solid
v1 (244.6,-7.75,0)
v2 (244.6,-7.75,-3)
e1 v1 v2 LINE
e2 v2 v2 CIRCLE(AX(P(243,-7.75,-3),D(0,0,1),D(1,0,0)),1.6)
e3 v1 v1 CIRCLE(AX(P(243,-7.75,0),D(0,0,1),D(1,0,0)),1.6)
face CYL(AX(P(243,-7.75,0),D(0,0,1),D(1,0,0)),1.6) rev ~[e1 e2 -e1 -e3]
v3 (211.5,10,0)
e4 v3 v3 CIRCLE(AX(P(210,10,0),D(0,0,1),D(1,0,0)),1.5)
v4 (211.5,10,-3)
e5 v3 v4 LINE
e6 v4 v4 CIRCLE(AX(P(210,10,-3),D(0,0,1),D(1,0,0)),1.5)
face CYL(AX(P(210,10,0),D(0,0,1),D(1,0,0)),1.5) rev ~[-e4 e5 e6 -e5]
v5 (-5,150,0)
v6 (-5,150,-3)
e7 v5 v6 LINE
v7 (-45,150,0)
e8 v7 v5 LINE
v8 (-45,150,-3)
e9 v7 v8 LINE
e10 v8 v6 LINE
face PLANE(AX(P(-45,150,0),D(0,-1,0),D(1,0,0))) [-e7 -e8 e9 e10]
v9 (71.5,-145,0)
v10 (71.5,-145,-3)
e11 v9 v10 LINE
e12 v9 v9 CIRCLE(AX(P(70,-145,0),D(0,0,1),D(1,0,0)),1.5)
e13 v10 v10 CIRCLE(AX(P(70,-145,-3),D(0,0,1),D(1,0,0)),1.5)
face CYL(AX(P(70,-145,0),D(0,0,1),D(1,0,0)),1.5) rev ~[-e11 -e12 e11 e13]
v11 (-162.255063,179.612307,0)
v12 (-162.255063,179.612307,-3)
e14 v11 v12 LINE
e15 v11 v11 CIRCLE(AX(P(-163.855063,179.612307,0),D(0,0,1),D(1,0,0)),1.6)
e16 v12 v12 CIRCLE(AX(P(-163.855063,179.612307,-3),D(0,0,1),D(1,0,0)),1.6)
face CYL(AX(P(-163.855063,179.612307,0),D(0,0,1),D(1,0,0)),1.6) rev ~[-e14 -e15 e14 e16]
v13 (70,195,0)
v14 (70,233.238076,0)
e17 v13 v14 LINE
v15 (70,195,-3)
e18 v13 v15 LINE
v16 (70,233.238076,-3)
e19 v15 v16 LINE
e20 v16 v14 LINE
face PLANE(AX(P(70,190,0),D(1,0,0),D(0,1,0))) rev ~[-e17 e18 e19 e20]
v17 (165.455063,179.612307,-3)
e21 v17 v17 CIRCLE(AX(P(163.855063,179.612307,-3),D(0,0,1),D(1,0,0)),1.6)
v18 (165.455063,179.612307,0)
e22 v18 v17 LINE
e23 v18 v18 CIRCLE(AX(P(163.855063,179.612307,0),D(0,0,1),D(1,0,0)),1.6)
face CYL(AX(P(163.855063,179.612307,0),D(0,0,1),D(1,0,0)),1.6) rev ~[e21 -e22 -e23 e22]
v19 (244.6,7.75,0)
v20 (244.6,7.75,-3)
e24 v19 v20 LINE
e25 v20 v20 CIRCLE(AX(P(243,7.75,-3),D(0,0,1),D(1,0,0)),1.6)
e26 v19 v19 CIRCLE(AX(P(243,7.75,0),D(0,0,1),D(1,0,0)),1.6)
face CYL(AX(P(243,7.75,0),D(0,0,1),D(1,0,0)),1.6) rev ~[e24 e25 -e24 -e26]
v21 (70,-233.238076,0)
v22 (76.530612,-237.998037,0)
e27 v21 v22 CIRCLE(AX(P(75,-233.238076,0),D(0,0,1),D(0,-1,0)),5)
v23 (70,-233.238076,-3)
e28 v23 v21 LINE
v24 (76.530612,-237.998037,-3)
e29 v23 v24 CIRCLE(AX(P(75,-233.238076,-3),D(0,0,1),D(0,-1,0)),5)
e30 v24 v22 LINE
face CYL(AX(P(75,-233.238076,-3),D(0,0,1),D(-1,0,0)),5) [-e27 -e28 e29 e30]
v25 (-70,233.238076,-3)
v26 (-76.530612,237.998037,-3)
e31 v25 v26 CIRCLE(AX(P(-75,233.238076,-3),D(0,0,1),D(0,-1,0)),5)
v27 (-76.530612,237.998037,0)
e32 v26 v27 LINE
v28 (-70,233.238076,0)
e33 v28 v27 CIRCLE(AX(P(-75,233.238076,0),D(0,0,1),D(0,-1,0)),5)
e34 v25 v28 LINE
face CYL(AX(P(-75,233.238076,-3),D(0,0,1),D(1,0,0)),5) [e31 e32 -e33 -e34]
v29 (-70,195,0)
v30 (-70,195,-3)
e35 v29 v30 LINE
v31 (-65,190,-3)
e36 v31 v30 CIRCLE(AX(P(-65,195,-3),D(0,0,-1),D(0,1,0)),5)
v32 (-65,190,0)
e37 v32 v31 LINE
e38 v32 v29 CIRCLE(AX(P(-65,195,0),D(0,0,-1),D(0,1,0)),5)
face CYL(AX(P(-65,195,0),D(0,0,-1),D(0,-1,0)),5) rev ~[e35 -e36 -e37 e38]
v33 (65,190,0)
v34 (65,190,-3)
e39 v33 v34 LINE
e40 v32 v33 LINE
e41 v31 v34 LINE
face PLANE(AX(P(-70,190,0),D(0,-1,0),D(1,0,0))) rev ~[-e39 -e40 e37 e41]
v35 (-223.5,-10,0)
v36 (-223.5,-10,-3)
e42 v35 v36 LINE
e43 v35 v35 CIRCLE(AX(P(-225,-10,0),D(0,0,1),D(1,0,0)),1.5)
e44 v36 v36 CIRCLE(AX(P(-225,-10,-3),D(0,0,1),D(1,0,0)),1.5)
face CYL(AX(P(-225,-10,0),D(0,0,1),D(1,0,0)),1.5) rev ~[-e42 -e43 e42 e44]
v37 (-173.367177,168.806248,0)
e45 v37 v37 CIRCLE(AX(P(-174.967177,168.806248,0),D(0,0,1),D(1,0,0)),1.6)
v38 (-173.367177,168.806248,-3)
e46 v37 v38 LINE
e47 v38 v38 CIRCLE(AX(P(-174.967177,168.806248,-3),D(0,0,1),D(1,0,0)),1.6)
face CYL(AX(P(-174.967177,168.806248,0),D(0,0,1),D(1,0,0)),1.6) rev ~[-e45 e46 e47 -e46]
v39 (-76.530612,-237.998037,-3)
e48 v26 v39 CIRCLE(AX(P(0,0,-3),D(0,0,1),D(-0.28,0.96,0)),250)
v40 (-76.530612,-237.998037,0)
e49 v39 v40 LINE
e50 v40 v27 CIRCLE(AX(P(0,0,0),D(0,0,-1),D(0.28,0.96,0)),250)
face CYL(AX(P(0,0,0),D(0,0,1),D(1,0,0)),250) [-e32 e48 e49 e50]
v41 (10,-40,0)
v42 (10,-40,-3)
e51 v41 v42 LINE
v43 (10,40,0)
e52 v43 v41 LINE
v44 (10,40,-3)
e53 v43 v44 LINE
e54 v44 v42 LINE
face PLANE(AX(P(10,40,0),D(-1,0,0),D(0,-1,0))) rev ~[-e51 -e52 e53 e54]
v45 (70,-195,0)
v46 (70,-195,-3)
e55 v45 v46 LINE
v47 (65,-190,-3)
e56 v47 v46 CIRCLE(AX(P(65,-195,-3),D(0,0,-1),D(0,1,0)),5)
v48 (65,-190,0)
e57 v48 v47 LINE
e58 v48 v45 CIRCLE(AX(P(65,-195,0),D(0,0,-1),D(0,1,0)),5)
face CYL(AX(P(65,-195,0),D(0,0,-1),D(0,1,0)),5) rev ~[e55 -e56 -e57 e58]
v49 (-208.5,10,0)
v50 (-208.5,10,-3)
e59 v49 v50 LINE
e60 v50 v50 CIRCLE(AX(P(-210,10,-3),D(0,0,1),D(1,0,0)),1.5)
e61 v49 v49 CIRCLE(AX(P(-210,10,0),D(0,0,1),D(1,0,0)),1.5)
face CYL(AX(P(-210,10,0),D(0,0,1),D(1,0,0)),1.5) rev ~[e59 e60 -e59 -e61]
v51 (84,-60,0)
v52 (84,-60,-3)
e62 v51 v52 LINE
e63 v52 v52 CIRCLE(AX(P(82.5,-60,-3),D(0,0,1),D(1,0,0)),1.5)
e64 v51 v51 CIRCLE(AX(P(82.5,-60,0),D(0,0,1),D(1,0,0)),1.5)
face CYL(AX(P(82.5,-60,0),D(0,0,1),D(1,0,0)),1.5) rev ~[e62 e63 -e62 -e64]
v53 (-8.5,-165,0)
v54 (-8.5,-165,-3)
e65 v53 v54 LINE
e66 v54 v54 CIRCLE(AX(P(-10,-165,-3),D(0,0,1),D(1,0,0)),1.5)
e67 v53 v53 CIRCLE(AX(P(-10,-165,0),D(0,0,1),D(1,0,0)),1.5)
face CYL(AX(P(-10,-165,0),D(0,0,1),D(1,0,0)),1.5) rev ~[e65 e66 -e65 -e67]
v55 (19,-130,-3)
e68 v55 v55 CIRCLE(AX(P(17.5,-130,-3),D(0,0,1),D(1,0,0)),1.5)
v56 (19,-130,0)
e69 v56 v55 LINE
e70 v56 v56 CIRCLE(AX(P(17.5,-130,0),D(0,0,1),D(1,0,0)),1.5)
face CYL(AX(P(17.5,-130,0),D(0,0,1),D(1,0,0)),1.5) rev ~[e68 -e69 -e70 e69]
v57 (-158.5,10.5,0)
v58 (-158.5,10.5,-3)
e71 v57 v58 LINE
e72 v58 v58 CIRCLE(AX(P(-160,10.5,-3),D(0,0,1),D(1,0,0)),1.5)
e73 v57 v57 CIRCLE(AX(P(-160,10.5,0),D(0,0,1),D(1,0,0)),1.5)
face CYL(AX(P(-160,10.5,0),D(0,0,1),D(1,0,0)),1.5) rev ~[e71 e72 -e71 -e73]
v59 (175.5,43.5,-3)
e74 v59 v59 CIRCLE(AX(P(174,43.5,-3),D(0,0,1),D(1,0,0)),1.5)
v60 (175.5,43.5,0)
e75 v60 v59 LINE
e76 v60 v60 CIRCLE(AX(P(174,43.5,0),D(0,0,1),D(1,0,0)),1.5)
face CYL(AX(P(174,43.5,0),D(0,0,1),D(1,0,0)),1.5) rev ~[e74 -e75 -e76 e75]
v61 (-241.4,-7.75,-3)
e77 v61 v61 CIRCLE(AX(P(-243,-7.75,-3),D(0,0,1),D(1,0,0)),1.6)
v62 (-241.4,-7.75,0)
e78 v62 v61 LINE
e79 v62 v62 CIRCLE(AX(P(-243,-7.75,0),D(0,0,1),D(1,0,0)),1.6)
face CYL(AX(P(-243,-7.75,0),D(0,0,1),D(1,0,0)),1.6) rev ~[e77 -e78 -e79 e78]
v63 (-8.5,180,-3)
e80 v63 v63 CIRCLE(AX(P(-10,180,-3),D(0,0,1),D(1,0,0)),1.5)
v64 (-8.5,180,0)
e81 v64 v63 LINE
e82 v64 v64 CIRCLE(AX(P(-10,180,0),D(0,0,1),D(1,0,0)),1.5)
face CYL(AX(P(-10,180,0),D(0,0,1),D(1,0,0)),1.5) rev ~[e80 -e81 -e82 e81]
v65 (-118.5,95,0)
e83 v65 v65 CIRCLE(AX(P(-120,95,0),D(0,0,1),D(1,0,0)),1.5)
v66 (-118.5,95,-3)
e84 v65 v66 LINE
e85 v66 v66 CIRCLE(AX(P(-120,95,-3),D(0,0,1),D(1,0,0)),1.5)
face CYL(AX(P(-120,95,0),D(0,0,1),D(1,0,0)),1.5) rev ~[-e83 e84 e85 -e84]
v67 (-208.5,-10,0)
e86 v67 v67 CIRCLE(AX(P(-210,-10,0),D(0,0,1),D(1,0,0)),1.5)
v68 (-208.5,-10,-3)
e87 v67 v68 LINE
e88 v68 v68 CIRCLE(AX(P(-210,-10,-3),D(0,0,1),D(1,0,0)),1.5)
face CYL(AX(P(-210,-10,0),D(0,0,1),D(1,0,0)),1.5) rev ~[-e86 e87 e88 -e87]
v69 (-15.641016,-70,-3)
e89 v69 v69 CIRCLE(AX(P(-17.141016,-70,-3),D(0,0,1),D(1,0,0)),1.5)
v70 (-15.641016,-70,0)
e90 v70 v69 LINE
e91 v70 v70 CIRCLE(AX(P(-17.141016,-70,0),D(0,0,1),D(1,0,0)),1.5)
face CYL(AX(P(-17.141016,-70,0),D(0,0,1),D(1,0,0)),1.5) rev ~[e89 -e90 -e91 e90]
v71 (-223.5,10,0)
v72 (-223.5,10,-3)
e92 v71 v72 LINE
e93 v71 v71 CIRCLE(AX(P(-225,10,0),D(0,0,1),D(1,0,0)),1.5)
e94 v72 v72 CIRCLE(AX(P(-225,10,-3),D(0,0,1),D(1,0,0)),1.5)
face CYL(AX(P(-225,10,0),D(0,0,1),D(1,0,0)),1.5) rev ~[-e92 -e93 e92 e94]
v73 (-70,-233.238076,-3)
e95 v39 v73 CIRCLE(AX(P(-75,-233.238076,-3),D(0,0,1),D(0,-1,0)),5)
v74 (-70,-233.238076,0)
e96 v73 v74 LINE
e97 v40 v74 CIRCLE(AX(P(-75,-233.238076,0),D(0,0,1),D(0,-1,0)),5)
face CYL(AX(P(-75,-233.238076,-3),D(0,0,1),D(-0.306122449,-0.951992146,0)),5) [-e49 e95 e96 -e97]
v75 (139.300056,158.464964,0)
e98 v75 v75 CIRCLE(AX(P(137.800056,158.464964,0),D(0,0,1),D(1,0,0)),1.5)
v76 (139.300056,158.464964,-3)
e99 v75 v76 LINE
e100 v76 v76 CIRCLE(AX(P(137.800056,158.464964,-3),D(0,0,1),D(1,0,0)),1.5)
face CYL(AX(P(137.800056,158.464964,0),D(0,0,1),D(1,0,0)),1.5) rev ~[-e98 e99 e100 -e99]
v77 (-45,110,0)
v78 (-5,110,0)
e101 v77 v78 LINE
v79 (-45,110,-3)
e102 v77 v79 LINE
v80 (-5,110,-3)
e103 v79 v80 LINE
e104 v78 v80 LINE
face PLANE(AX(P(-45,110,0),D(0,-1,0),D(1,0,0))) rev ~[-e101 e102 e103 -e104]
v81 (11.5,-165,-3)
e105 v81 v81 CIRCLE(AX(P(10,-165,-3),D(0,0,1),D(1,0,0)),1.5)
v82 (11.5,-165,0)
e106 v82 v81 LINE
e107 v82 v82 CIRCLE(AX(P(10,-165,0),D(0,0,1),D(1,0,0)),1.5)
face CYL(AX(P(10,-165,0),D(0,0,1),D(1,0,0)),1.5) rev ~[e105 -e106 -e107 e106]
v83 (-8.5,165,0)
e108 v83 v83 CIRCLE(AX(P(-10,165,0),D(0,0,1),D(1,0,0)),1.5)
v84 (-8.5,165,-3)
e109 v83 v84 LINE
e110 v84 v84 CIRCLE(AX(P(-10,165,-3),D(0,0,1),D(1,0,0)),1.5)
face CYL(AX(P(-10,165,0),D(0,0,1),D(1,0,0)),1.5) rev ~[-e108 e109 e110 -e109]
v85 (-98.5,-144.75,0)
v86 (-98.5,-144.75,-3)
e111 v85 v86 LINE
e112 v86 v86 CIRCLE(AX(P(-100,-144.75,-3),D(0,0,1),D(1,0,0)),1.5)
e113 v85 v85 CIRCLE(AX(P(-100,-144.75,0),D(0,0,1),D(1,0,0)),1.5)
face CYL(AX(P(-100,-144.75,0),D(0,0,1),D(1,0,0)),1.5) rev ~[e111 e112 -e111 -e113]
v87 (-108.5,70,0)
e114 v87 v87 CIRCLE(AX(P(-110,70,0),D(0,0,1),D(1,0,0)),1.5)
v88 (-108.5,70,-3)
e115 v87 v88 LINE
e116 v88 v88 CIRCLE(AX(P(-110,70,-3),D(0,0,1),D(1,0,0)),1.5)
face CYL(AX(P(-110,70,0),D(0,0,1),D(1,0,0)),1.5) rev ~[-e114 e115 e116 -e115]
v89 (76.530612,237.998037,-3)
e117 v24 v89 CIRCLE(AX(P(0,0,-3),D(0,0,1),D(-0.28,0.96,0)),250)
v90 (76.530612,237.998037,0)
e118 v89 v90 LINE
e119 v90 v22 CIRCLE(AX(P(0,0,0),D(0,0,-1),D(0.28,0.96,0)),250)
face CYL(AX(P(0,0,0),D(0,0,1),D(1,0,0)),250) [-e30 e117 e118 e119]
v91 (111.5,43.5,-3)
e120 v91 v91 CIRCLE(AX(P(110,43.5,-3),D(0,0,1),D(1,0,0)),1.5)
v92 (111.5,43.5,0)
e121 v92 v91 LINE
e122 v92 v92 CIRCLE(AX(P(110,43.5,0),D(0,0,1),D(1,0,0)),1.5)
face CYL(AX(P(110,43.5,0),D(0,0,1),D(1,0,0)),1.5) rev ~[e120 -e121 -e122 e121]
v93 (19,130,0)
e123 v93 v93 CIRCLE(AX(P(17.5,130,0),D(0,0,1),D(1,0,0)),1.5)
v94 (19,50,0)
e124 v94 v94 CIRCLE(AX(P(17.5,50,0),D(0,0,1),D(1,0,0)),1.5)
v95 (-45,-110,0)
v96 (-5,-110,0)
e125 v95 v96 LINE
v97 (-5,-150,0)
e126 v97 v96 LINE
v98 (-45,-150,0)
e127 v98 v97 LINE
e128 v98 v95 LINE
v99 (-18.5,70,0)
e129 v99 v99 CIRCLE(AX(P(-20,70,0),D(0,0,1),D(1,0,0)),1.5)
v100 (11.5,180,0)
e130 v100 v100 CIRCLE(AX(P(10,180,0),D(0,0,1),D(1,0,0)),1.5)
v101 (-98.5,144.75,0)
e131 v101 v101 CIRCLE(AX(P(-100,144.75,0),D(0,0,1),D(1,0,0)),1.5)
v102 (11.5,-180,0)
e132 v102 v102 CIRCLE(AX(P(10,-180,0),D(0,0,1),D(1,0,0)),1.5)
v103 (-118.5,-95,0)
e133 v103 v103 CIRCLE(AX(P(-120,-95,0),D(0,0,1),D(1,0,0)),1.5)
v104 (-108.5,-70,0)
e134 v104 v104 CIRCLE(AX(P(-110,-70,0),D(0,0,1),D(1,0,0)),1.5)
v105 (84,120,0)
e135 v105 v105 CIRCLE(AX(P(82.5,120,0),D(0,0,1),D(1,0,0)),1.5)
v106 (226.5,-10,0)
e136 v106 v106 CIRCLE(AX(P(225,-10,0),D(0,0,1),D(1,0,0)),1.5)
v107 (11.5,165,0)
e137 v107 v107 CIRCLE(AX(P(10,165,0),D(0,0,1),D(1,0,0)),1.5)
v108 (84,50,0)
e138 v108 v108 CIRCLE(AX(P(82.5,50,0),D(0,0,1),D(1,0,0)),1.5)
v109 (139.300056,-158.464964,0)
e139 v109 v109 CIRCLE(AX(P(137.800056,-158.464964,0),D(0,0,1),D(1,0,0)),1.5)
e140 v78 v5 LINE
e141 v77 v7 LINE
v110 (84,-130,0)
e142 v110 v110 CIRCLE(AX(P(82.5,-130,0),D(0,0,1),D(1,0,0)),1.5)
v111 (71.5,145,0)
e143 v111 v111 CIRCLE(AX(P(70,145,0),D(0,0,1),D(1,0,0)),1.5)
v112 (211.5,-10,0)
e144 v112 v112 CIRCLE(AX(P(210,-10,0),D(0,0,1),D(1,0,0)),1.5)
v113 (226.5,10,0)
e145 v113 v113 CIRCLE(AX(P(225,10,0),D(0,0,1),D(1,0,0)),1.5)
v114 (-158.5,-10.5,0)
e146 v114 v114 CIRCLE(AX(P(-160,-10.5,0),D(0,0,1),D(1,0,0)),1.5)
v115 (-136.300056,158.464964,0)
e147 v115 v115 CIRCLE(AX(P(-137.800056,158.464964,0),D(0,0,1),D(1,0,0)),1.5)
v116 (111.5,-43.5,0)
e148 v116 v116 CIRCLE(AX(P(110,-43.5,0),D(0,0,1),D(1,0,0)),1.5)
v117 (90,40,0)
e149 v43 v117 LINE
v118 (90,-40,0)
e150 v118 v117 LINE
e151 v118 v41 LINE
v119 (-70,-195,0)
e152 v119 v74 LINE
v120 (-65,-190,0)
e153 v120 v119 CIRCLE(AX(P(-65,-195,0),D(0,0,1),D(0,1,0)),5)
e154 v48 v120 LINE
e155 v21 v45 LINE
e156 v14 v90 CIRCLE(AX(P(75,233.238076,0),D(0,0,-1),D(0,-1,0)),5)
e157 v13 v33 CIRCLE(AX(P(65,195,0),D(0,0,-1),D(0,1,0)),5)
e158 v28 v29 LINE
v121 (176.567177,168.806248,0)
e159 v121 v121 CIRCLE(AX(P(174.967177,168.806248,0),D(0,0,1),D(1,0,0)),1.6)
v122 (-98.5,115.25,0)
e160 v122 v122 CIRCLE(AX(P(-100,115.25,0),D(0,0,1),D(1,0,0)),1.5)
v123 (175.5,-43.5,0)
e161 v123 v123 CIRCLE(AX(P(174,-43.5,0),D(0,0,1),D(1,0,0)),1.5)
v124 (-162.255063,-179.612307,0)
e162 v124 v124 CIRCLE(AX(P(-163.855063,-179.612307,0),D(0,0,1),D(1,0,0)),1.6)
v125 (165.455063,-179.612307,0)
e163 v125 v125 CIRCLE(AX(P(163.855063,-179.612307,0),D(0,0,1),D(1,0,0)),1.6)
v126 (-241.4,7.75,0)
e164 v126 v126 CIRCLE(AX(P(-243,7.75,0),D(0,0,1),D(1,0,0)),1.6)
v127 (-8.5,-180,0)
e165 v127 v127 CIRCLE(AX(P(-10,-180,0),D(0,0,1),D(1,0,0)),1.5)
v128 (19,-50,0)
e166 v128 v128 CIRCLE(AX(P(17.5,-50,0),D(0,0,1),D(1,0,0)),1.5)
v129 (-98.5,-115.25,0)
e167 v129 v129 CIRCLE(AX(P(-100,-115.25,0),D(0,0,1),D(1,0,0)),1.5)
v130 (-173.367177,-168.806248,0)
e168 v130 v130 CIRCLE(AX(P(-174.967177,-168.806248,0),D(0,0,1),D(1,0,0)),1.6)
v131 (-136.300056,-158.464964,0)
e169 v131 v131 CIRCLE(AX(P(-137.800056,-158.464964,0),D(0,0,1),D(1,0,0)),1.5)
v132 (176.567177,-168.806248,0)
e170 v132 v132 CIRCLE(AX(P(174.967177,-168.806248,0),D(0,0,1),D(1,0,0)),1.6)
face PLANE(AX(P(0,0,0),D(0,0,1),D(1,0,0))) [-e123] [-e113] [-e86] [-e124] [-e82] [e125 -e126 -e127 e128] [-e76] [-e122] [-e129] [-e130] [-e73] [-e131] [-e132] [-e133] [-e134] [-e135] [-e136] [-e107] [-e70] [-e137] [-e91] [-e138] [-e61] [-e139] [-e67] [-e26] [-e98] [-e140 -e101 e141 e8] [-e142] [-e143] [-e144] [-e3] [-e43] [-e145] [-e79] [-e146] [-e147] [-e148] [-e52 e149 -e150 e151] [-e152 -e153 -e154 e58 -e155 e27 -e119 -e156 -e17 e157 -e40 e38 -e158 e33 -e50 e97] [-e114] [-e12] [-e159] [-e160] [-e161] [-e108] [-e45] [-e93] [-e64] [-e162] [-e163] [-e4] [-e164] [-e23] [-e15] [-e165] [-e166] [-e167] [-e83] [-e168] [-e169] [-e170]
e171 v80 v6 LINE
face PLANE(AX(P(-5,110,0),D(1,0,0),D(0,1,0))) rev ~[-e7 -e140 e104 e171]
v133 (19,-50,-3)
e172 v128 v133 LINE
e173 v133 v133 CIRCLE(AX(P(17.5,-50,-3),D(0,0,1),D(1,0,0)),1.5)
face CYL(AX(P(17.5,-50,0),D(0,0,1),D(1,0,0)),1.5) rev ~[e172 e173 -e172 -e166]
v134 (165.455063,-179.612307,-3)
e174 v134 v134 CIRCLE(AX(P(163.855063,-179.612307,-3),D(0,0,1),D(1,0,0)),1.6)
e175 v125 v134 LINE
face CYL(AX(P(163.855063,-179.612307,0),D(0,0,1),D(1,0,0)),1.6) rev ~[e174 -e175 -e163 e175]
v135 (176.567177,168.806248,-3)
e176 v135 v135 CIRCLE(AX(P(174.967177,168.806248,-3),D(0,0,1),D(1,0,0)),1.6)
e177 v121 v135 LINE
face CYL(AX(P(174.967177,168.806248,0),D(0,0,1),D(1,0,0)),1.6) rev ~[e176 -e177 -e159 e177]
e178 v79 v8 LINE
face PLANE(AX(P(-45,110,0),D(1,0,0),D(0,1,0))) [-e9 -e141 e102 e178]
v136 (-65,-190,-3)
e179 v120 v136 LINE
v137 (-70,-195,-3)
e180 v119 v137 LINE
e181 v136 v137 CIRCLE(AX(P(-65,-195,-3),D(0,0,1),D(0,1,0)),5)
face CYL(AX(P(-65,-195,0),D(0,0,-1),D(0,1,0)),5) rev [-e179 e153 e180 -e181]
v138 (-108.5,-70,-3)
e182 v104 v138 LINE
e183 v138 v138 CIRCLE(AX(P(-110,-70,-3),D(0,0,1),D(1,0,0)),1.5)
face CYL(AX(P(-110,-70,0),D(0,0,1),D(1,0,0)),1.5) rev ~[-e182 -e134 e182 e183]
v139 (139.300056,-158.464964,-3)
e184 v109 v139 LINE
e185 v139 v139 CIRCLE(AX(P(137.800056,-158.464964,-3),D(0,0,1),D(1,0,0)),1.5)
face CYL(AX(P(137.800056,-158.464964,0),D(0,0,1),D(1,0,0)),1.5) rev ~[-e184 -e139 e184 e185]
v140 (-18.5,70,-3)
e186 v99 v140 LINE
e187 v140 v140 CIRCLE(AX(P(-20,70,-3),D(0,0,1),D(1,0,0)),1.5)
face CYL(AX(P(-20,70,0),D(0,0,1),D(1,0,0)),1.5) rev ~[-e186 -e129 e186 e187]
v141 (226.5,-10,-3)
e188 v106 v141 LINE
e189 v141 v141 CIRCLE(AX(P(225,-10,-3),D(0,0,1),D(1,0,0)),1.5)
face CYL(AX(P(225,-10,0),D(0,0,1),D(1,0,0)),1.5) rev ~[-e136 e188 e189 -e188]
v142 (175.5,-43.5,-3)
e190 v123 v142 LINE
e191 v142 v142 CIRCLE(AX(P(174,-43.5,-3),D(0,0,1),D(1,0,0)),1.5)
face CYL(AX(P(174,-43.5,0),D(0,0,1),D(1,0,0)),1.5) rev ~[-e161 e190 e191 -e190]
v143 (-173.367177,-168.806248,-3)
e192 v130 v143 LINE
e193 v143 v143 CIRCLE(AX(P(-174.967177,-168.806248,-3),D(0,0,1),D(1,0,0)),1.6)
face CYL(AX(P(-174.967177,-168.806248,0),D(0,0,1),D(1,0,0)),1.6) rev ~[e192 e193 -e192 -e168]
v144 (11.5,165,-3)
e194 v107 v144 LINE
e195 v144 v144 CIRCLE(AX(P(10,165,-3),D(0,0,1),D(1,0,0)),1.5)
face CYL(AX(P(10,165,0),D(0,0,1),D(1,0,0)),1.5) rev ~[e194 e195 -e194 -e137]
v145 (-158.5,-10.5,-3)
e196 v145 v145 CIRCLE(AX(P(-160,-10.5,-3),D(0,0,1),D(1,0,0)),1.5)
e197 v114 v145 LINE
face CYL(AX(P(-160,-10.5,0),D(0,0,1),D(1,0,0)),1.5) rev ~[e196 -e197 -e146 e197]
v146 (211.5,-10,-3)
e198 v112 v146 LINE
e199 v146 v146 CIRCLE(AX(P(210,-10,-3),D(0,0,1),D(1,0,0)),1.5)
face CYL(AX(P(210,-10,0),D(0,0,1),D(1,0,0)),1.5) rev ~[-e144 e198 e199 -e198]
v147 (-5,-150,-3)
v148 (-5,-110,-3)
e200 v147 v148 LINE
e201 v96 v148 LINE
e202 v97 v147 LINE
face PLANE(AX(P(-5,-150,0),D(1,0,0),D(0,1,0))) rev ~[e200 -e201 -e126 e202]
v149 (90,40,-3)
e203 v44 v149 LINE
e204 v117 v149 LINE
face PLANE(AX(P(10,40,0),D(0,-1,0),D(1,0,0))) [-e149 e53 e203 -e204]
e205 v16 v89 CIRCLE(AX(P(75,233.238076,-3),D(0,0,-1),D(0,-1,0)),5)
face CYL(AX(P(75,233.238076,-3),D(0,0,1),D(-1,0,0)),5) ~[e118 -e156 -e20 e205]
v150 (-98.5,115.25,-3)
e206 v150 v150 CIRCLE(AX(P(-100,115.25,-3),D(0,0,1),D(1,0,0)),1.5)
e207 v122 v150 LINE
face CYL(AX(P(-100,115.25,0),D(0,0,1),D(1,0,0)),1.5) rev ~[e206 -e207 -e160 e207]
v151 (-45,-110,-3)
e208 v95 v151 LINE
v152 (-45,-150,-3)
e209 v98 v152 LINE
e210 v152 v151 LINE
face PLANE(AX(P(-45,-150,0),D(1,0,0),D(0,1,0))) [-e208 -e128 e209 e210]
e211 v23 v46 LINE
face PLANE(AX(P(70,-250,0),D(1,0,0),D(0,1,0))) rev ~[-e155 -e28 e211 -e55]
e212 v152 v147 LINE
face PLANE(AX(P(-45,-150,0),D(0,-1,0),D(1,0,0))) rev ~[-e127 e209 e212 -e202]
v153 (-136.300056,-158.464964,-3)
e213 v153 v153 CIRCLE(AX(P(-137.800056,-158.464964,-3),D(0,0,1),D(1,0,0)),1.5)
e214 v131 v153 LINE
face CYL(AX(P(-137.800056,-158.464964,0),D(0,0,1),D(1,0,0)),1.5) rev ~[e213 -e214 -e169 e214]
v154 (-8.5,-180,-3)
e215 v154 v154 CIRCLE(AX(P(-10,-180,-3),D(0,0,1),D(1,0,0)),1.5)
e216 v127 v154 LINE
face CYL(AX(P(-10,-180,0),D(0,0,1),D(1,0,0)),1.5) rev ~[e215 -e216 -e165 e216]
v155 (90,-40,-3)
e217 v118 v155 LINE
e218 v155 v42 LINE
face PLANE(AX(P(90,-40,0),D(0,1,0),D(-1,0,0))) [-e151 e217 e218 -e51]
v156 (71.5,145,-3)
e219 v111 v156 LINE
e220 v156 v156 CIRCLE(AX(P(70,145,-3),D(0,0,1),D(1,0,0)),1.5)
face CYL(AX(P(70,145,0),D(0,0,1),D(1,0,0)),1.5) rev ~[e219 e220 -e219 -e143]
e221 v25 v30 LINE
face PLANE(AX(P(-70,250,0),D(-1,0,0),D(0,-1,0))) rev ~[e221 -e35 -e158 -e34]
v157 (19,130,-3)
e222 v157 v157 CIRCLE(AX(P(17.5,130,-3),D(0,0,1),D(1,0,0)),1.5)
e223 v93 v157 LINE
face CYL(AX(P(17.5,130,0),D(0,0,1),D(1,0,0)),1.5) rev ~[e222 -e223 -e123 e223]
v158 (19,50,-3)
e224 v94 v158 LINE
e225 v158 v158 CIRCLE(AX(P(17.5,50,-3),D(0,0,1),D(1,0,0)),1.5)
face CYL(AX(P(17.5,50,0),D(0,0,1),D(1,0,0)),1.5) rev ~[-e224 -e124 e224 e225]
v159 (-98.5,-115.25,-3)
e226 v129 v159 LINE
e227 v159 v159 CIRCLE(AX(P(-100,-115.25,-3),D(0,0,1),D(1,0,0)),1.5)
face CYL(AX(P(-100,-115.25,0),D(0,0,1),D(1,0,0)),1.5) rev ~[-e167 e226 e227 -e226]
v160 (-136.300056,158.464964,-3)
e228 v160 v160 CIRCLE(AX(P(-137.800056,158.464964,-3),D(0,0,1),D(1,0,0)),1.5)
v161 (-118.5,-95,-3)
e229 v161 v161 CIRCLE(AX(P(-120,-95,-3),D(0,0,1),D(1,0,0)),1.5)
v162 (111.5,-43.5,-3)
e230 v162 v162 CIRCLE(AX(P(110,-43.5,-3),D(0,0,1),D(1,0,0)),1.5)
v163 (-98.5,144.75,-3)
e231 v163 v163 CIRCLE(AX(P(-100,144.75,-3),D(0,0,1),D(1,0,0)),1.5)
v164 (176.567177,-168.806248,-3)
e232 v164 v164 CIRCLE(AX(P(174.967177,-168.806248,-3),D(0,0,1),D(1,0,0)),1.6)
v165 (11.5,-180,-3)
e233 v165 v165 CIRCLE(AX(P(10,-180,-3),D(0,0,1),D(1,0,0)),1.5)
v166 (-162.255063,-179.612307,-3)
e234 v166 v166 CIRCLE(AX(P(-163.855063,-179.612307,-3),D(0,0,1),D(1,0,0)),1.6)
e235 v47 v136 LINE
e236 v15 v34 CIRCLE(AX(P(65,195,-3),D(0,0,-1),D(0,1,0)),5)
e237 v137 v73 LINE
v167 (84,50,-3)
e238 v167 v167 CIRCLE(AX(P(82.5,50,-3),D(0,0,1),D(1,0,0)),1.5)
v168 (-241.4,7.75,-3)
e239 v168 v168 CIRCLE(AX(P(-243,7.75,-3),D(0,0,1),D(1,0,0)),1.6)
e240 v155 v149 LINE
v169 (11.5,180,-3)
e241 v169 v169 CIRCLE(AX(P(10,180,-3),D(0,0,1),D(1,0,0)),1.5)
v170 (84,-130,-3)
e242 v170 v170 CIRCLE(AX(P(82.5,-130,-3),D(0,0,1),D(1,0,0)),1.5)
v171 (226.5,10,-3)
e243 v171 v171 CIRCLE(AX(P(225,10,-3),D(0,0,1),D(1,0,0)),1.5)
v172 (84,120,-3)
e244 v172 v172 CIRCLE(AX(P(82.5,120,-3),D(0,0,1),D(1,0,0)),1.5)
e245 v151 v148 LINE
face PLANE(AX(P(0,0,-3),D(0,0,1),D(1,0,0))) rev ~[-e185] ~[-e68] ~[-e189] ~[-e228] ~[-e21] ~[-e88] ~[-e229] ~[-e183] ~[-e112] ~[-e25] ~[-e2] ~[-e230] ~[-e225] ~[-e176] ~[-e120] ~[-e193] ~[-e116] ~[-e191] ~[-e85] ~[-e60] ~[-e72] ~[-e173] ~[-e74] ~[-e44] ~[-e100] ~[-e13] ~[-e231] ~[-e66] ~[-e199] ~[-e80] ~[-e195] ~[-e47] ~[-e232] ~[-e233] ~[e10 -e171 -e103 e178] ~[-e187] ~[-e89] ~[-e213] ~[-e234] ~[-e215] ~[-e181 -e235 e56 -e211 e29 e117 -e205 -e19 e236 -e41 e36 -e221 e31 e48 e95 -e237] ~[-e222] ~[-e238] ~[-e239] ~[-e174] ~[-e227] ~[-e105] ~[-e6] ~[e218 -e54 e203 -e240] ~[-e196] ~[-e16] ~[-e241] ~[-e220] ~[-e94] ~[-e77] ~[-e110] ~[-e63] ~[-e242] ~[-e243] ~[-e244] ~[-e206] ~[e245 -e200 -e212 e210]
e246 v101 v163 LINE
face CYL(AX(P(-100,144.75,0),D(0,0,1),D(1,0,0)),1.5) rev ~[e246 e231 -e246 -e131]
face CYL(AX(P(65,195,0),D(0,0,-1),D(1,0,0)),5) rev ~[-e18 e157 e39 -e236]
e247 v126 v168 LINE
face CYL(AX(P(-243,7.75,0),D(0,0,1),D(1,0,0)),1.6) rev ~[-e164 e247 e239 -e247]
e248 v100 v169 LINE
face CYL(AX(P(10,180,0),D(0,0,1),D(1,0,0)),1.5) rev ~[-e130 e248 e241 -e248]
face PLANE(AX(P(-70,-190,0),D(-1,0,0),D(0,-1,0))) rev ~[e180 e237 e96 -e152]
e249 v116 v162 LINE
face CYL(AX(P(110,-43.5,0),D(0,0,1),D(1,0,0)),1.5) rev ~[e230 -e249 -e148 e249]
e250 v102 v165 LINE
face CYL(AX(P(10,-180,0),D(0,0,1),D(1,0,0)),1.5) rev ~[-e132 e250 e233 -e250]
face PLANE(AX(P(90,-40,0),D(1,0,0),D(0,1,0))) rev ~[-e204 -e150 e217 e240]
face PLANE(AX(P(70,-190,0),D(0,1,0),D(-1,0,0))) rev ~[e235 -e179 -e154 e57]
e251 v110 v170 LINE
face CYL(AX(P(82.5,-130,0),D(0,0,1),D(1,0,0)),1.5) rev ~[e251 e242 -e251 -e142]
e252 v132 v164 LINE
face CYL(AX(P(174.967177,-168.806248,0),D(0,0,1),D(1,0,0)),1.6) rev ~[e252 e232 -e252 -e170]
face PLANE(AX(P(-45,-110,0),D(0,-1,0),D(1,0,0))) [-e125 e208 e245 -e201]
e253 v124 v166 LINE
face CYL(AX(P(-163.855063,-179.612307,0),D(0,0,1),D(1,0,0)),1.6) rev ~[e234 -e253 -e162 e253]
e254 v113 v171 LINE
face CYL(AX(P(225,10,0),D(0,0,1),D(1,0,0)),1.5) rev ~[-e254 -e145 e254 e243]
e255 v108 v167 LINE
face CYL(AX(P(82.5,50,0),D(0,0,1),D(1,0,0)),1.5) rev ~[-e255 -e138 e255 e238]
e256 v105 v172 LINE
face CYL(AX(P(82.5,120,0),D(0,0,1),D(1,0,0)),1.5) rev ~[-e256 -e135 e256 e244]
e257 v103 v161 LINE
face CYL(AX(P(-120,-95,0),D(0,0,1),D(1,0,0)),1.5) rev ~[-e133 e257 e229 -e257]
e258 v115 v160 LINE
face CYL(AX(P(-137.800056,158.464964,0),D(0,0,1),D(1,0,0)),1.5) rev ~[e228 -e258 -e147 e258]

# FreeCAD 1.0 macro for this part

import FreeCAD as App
import Part
import Sketcher


def edges_at(feature, points):
    """Names of the edges that pass closest to the given points."""
    edges = feature.Shape.Edges
    near = lambda p: min(range(len(edges)), key=lambda i: edges[i].distToShape(Part.Vertex(*p))[0])
    return sorted({f"Edge{near(p) + 1}" for p in points})


def add_polygon(sketch, points):
    """Adds a closed chain of lines whose ends are joined by coincident constraints."""
    first, n = sketch.GeometryCount, len(points)
    for a, b in zip(points, points[1:] + points[:1]):
        sketch.addGeometry(Part.LineSegment(App.Vector(*a, 0), App.Vector(*b, 0)), False)
    for i in range(n):
        sketch.addConstraint(Sketcher.Constraint("Coincident", first + i, 2, first + (i + 1) % n, 1))

doc = App.newDocument("Part")
body = doc.addObject("PartDesign::Body", "Body")

sketch1 = body.newObject("Sketcher::SketchObject", "Sketch")
sketch1.AttachmentSupport = (doc.getObject("XY_Plane"), [""])
sketch1.MapMode = "FlatFace"
sketch1.addGeometry(Part.Circle(App.Vector(0, 0, 0), App.Vector(0, 0, 1), 250), False)
sketch1.addConstraint(Sketcher.Constraint("Coincident", 0, 3, -1, 1))
sketch1.addConstraint(Sketcher.Constraint("Diameter", 0, 500.0))
pad1 = body.newObject("PartDesign::Pad", "Pad")
pad1.Profile = sketch1
pad1.Length = 3
pad1.Reversed = True

sketch2 = body.newObject("Sketcher::SketchObject", "Sketch001")
sketch2.AttachmentSupport = (doc.getObject("XY_Plane"), [""])
sketch2.MapMode = "FlatFace"
add_polygon(sketch2, [(70, 190), (70, 250), (-70, 250), (-70, 190)])
sketch2.addConstraint(Sketcher.Constraint("Vertical", 0))
sketch2.addConstraint(Sketcher.Constraint("Horizontal", 1))
sketch2.addConstraint(Sketcher.Constraint("Vertical", 2))
sketch2.addConstraint(Sketcher.Constraint("Horizontal", 3))
sketch2.addConstraint(Sketcher.Constraint("DistanceX", 1, 2, 1, 1, 140.0))
sketch2.addConstraint(Sketcher.Constraint("DistanceY", 0, 1, 0, 2, 60.0))
sketch2.addConstraint(Sketcher.Constraint("DistanceX", -1, 1, 0, 2, 70.0))
sketch2.addConstraint(Sketcher.Constraint("DistanceY", -1, 1, 0, 2, 250.0))
pocket1 = body.newObject("PartDesign::Pocket", "Pocket")
pocket1.Profile = sketch2
pocket1.Type = "ThroughAll"

sketch3 = body.newObject("Sketcher::SketchObject", "Sketch002")
sketch3.AttachmentSupport = (doc.getObject("XY_Plane"), [""])
sketch3.MapMode = "FlatFace"
add_polygon(sketch3, [(70, -250), (70, -190), (-70, -190), (-70, -250)])
sketch3.addConstraint(Sketcher.Constraint("Vertical", 0))
sketch3.addConstraint(Sketcher.Constraint("Horizontal", 1))
sketch3.addConstraint(Sketcher.Constraint("Vertical", 2))
sketch3.addConstraint(Sketcher.Constraint("Horizontal", 3))
sketch3.addConstraint(Sketcher.Constraint("DistanceX", 1, 2, 1, 1, 140.0))
sketch3.addConstraint(Sketcher.Constraint("DistanceY", 0, 1, 0, 2, 60.0))
sketch3.addConstraint(Sketcher.Constraint("DistanceX", -1, 1, 0, 2, 70.0))
sketch3.addConstraint(Sketcher.Constraint("DistanceY", 0, 2, -1, 1, 190.0))
pocket2 = body.newObject("PartDesign::Pocket", "Pocket001")
pocket2.Profile = sketch3
pocket2.Type = "ThroughAll"
doc.recompute()

fillet = body.newObject("PartDesign::Fillet", "Fillet")
fillet.Base = (pocket2, edges_at(pocket2, [(-70, 240, -1.5)]))
fillet.Radius = 5
doc.recompute()

fillet2 = body.newObject("PartDesign::Fillet", "Fillet001")
fillet2.Base = (fillet, edges_at(fillet, [(70, 240, -1.5)]))
fillet2.Radius = 5
doc.recompute()

fillet3 = body.newObject("PartDesign::Fillet", "Fillet002")
fillet3.Base = (fillet2, edges_at(fillet2, [(70, 190, -1.5)]))
fillet3.Radius = 5
doc.recompute()

fillet4 = body.newObject("PartDesign::Fillet", "Fillet003")
fillet4.Base = (fillet3, edges_at(fillet3, [(-70, 190, -1.5)]))
fillet4.Radius = 5
doc.recompute()

fillet5 = body.newObject("PartDesign::Fillet", "Fillet004")
fillet5.Base = (fillet4, edges_at(fillet4, [(-70, -240, -1.5)]))
fillet5.Radius = 5
doc.recompute()

fillet6 = body.newObject("PartDesign::Fillet", "Fillet005")
fillet6.Base = (fillet5, edges_at(fillet5, [(70, -190, -1.5)]))
fillet6.Radius = 5
doc.recompute()

fillet7 = body.newObject("PartDesign::Fillet", "Fillet006")
fillet7.Base = (fillet6, edges_at(fillet6, [(70, -240, -1.5)]))
fillet7.Radius = 5
doc.recompute()

fillet8 = body.newObject("PartDesign::Fillet", "Fillet007")
fillet8.Base = (fillet7, edges_at(fillet7, [(-70, -190, -1.5)]))
fillet8.Radius = 5

sketch4 = body.newObject("Sketcher::SketchObject", "Sketch003")
sketch4.AttachmentSupport = (doc.getObject("XY_Plane"), [""])
sketch4.MapMode = "FlatFace"
sketch4.addGeometry(Part.Circle(App.Vector(-100, 144.8, 0), App.Vector(0, 0, 1), 1.5), False)
sketch4.addGeometry(Part.Circle(App.Vector(-100, 115.2, 0), App.Vector(0, 0, 1), 1.5), False)
sketch4.addGeometry(Part.Circle(App.Vector(-100, -115.2, 0), App.Vector(0, 0, 1), 1.5), False)
sketch4.addGeometry(Part.Circle(App.Vector(-100, -144.8, 0), App.Vector(0, 0, 1), 1.5), False)
sketch4.addConstraint(Sketcher.Constraint("Equal", 0, 1))
sketch4.addConstraint(Sketcher.Constraint("Equal", 1, 2))
sketch4.addConstraint(Sketcher.Constraint("Equal", 2, 3))
sketch4.addConstraint(Sketcher.Constraint("Symmetric", 1, 3, 2, 3, -1))
sketch4.addConstraint(Sketcher.Constraint("Symmetric", 0, 3, 3, 3, -1))
sketch4.addConstraint(Sketcher.Constraint("Vertical", 0, 3, 1, 3))
sketch4.addConstraint(Sketcher.Constraint("Diameter", 0, 3.0))
sketch4.addConstraint(Sketcher.Constraint("DistanceX", 0, 3, -1, 1, 100.0))
sketch4.addConstraint(Sketcher.Constraint("DistanceY", 2, 3, 0, 3, 260.0))
sketch4.addConstraint(Sketcher.Constraint("DistanceY", 1, 3, 0, 3, 29.5))
pocket3 = body.newObject("PartDesign::Pocket", "Pocket002")
pocket3.Profile = sketch4
pocket3.Type = "ThroughAll"

sketch5 = body.newObject("Sketcher::SketchObject", "Sketch004")
sketch5.AttachmentSupport = (doc.getObject("XY_Plane"), [""])
sketch5.MapMode = "FlatFace"
sketch5.addGeometry(Part.Circle(App.Vector(-160, 10.5, 0), App.Vector(0, 0, 1), 1.5), False)
sketch5.addGeometry(Part.Circle(App.Vector(-160, -10.5, 0), App.Vector(0, 0, 1), 1.5), False)
sketch5.addConstraint(Sketcher.Constraint("Equal", 0, 1))
sketch5.addConstraint(Sketcher.Constraint("Symmetric", 0, 3, 1, 3, -1))
sketch5.addConstraint(Sketcher.Constraint("Diameter", 0, 3.0))
sketch5.addConstraint(Sketcher.Constraint("DistanceX", 0, 3, -1, 1, 160.0))
sketch5.addConstraint(Sketcher.Constraint("DistanceY", 1, 3, 0, 3, 21.0))
pocket4 = body.newObject("PartDesign::Pocket", "Pocket003")
pocket4.Profile = sketch5
pocket4.Length = 3

sketch6 = body.newObject("Sketcher::SketchObject", "Sketch005")
sketch6.AttachmentSupport = (doc.getObject("XY_Plane"), [""])
sketch6.MapMode = "FlatFace"
sketch6.addGeometry(Part.Circle(App.Vector(-243, 7.8, 0), App.Vector(0, 0, 1), 1.6), False)
sketch6.addGeometry(Part.Circle(App.Vector(-243, -7.8, 0), App.Vector(0, 0, 1), 1.6), False)
sketch6.addGeometry(Part.Circle(App.Vector(-163.9, 179.6, 0), App.Vector(0, 0, 1), 1.6), False)
sketch6.addGeometry(Part.Circle(App.Vector(-175, 168.8, 0), App.Vector(0, 0, 1), 1.6), False)
sketch6.addGeometry(Part.Circle(App.Vector(-163.9, -179.6, 0), App.Vector(0, 0, 1), 1.6), False)
sketch6.addGeometry(Part.Circle(App.Vector(-175, -168.8, 0), App.Vector(0, 0, 1), 1.6), False)
sketch6.addConstraint(Sketcher.Constraint("Equal", 0, 1))
sketch6.addConstraint(Sketcher.Constraint("Equal", 1, 2))
sketch6.addConstraint(Sketcher.Constraint("Equal", 2, 3))
sketch6.addConstraint(Sketcher.Constraint("Equal", 3, 4))
sketch6.addConstraint(Sketcher.Constraint("Equal", 4, 5))
sketch6.addConstraint(Sketcher.Constraint("Symmetric", 0, 3, 1, 3, -1))
sketch6.addConstraint(Sketcher.Constraint("Symmetric", 2, 3, 4, 3, -1))
sketch6.addConstraint(Sketcher.Constraint("Symmetric", 3, 3, 5, 3, -1))
sketch6.addConstraint(Sketcher.Constraint("Diameter", 0, 3.2))
sketch6.addConstraint(Sketcher.Constraint("DistanceX", 0, 3, -1, 1, 243.0))
sketch6.addConstraint(Sketcher.Constraint("DistanceY", 1, 3, 0, 3, 15.5))
sketch6.addConstraint(Sketcher.Constraint("DistanceY", -1, 1, 3, 3, 168.806248))
sketch6.addConstraint(Sketcher.Constraint("DistanceY", 3, 3, 2, 3, 10.806059))
sketch6.addConstraint(Sketcher.Constraint("DistanceX", 2, 3, -1, 1, 163.855063))
sketch6.addConstraint(Sketcher.Constraint("DistanceX", 3, 3, -1, 1, 174.967177))
pocket5 = body.newObject("PartDesign::Pocket", "Pocket004")
pocket5.Profile = sketch6
pocket5.Type = "ThroughAll"

sketch7 = body.newObject("Sketcher::SketchObject", "Sketch006")
sketch7.AttachmentSupport = (doc.getObject("XY_Plane"), [""])
sketch7.MapMode = "FlatFace"
sketch7.addGeometry(Part.Circle(App.Vector(225, 10, 0), App.Vector(0, 0, 1), 1.5), False)
sketch7.addGeometry(Part.Circle(App.Vector(225, -10, 0), App.Vector(0, 0, 1), 1.5), False)
sketch7.addGeometry(Part.Circle(App.Vector(210, -10, 0), App.Vector(0, 0, 1), 1.5), False)
sketch7.addGeometry(Part.Circle(App.Vector(210, 10, 0), App.Vector(0, 0, 1), 1.5), False)
sketch7.addConstraint(Sketcher.Constraint("Equal", 0, 1))
sketch7.addConstraint(Sketcher.Constraint("Equal", 1, 2))
sketch7.addConstraint(Sketcher.Constraint("Equal", 2, 3))
sketch7.addConstraint(Sketcher.Constraint("Symmetric", 0, 3, 1, 3, -1))
sketch7.addConstraint(Sketcher.Constraint("Symmetric", 2, 3, 3, 3, -1))
sketch7.addConstraint(Sketcher.Constraint("Horizontal", 1, 3, 2, 3))
sketch7.addConstraint(Sketcher.Constraint("Diameter", 0, 3.0))
sketch7.addConstraint(Sketcher.Constraint("DistanceX", -1, 1, 0, 3, 225.0))
sketch7.addConstraint(Sketcher.Constraint("DistanceY", -1, 1, 0, 3, 10.0))
sketch7.addConstraint(Sketcher.Constraint("DistanceX", -1, 1, 2, 3, 210.0))
pocket6 = body.newObject("PartDesign::Pocket", "Pocket005")
pocket6.Profile = sketch7
pocket6.Type = "ThroughAll"

sketch8 = body.newObject("Sketcher::SketchObject", "Sketch007")
sketch8.AttachmentSupport = (doc.getObject("XY_Plane"), [""])
sketch8.MapMode = "FlatFace"
sketch8.addGeometry(Part.Circle(App.Vector(-225, 10, 0), App.Vector(0, 0, 1), 1.5), False)
sketch8.addGeometry(Part.Circle(App.Vector(-225, -10, 0), App.Vector(0, 0, 1), 1.5), False)
sketch8.addGeometry(Part.Circle(App.Vector(-210, -10, 0), App.Vector(0, 0, 1), 1.5), False)
sketch8.addGeometry(Part.Circle(App.Vector(-210, 10, 0), App.Vector(0, 0, 1), 1.5), False)
sketch8.addConstraint(Sketcher.Constraint("Equal", 0, 1))
sketch8.addConstraint(Sketcher.Constraint("Equal", 1, 2))
sketch8.addConstraint(Sketcher.Constraint("Equal", 2, 3))
sketch8.addConstraint(Sketcher.Constraint("Symmetric", 0, 3, 1, 3, -1))
sketch8.addConstraint(Sketcher.Constraint("Symmetric", 2, 3, 3, 3, -1))
sketch8.addConstraint(Sketcher.Constraint("Horizontal", 1, 3, 2, 3))
sketch8.addConstraint(Sketcher.Constraint("Diameter", 0, 3.0))
sketch8.addConstraint(Sketcher.Constraint("DistanceX", 0, 3, -1, 1, 225.0))
sketch8.addConstraint(Sketcher.Constraint("DistanceY", -1, 1, 0, 3, 10.0))
sketch8.addConstraint(Sketcher.Constraint("DistanceX", 2, 3, -1, 1, 210.0))
pocket7 = body.newObject("PartDesign::Pocket", "Pocket006")
pocket7.Profile = sketch8
pocket7.Type = "ThroughAll"

sketch9 = body.newObject("Sketcher::SketchObject", "Sketch008")
sketch9.AttachmentSupport = (doc.getObject("XY_Plane"), [""])
sketch9.MapMode = "FlatFace"
sketch9.addGeometry(Part.Circle(App.Vector(137.8, 158.5, 0), App.Vector(0, 0, 1), 1.5), False)
sketch9.addGeometry(Part.Circle(App.Vector(137.8, -158.5, 0), App.Vector(0, 0, 1), 1.5), False)
sketch9.addGeometry(Part.Circle(App.Vector(-137.8, -158.5, 0), App.Vector(0, 0, 1), 1.5), False)
sketch9.addGeometry(Part.Circle(App.Vector(-137.8, 158.5, 0), App.Vector(0, 0, 1), 1.5), False)
sketch9.addConstraint(Sketcher.Constraint("Equal", 0, 1))
sketch9.addConstraint(Sketcher.Constraint("Equal", 1, 2))
sketch9.addConstraint(Sketcher.Constraint("Equal", 2, 3))
sketch9.addConstraint(Sketcher.Constraint("Symmetric", 0, 3, 2, 3, -1, 1))
sketch9.addConstraint(Sketcher.Constraint("Symmetric", 1, 3, 3, 3, -1, 1))
sketch9.addConstraint(Sketcher.Constraint("Symmetric", 1, 3, 2, 3, -2))
sketch9.addConstraint(Sketcher.Constraint("Diameter", 0, 3.0))
sketch9.addConstraint(Sketcher.Constraint("DistanceX", 2, 3, 1, 3, 275.600111))
sketch9.addConstraint(Sketcher.Constraint("DistanceY", -1, 1, 0, 3, 158.464964))
pocket8 = body.newObject("PartDesign::Pocket", "Pocket007")
pocket8.Profile = sketch9
pocket8.Type = "ThroughAll"

sketch10 = body.newObject("Sketcher::SketchObject", "Sketch009")
sketch10.AttachmentSupport = (doc.getObject("XY_Plane"), [""])
sketch10.MapMode = "FlatFace"
sketch10.addGeometry(Part.Circle(App.Vector(175, -168.8, 0), App.Vector(0, 0, 1), 1.6), False)
sketch10.addGeometry(Part.Circle(App.Vector(163.9, -179.6, 0), App.Vector(0, 0, 1), 1.6), False)
sketch10.addGeometry(Part.Circle(App.Vector(243, -7.8, 0), App.Vector(0, 0, 1), 1.6), False)
sketch10.addGeometry(Part.Circle(App.Vector(243, 7.8, 0), App.Vector(0, 0, 1), 1.6), False)
sketch10.addGeometry(Part.Circle(App.Vector(175, 168.8, 0), App.Vector(0, 0, 1), 1.6), False)
sketch10.addGeometry(Part.Circle(App.Vector(163.9, 179.6, 0), App.Vector(0, 0, 1), 1.6), False)
sketch10.addConstraint(Sketcher.Constraint("Equal", 0, 1))
sketch10.addConstraint(Sketcher.Constraint("Equal", 1, 2))
sketch10.addConstraint(Sketcher.Constraint("Equal", 2, 3))
sketch10.addConstraint(Sketcher.Constraint("Equal", 3, 4))
sketch10.addConstraint(Sketcher.Constraint("Equal", 4, 5))
sketch10.addConstraint(Sketcher.Constraint("Symmetric", 2, 3, 3, 3, -1))
sketch10.addConstraint(Sketcher.Constraint("Symmetric", 0, 3, 4, 3, -1))
sketch10.addConstraint(Sketcher.Constraint("Symmetric", 1, 3, 5, 3, -1))
sketch10.addConstraint(Sketcher.Constraint("Diameter", 0, 3.2))
sketch10.addConstraint(Sketcher.Constraint("DistanceX", -1, 1, 2, 3, 243.0))
sketch10.addConstraint(Sketcher.Constraint("DistanceY", 2, 3, 3, 3, 15.5))
sketch10.addConstraint(Sketcher.Constraint("DistanceY", 0, 3, -1, 1, 168.806248))
sketch10.addConstraint(Sketcher.Constraint("DistanceY", 1, 3, 0, 3, 10.806059))
sketch10.addConstraint(Sketcher.Constraint("DistanceX", -1, 1, 0, 3, 174.967177))
sketch10.addConstraint(Sketcher.Constraint("DistanceX", -1, 1, 1, 3, 163.855063))
pocket9 = body.newObject("PartDesign::Pocket", "Pocket008")
pocket9.Profile = sketch10
pocket9.Type = "ThroughAll"

sketch11 = body.newObject("Sketcher::SketchObject", "Sketch010")
sketch11.AttachmentSupport = (doc.getObject("XY_Plane"), [""])
sketch11.MapMode = "FlatFace"
sketch11.addGeometry(Part.Circle(App.Vector(-10, 180, 0), App.Vector(0, 0, 1), 1.5), False)
sketch11.addGeometry(Part.Circle(App.Vector(10, 180, 0), App.Vector(0, 0, 1), 1.5), False)
sketch11.addGeometry(Part.Circle(App.Vector(10, 165, 0), App.Vector(0, 0, 1), 1.5), False)
sketch11.addGeometry(Part.Circle(App.Vector(-10, 165, 0), App.Vector(0, 0, 1), 1.5), False)
sketch11.addGeometry(Part.Circle(App.Vector(10, -180, 0), App.Vector(0, 0, 1), 1.5), False)
sketch11.addGeometry(Part.Circle(App.Vector(10, -165, 0), App.Vector(0, 0, 1), 1.5), False)
sketch11.addGeometry(Part.Circle(App.Vector(-10, -165, 0), App.Vector(0, 0, 1), 1.5), False)
sketch11.addGeometry(Part.Circle(App.Vector(-10, -180, 0), App.Vector(0, 0, 1), 1.5), False)
sketch11.addConstraint(Sketcher.Constraint("Equal", 0, 1))
sketch11.addConstraint(Sketcher.Constraint("Equal", 1, 2))
sketch11.addConstraint(Sketcher.Constraint("Equal", 2, 3))
sketch11.addConstraint(Sketcher.Constraint("Equal", 3, 4))
sketch11.addConstraint(Sketcher.Constraint("Equal", 4, 5))
sketch11.addConstraint(Sketcher.Constraint("Equal", 5, 6))
sketch11.addConstraint(Sketcher.Constraint("Equal", 6, 7))
sketch11.addConstraint(Sketcher.Constraint("Symmetric", 0, 3, 4, 3, -1, 1))
sketch11.addConstraint(Sketcher.Constraint("Symmetric", 3, 3, 5, 3, -1, 1))
sketch11.addConstraint(Sketcher.Constraint("Symmetric", 2, 3, 6, 3, -1, 1))
sketch11.addConstraint(Sketcher.Constraint("Symmetric", 1, 3, 7, 3, -1, 1))
sketch11.addConstraint(Sketcher.Constraint("Symmetric", 0, 3, 1, 3, -2))
sketch11.addConstraint(Sketcher.Constraint("Symmetric", 2, 3, 3, 3, -2))
sketch11.addConstraint(Sketcher.Constraint("Vertical", 1, 3, 2, 3))
sketch11.addConstraint(Sketcher.Constraint("Diameter", 0, 3.0))
sketch11.addConstraint(Sketcher.Constraint("DistanceX", 0, 3, -1, 1, 10.0))
sketch11.addConstraint(Sketcher.Constraint("DistanceY", -1, 1, 0, 3, 180.0))
sketch11.addConstraint(Sketcher.Constraint("DistanceY", -1, 1, 2, 3, 165.0))
pocket10 = body.newObject("PartDesign::Pocket", "Pocket009")
pocket10.Profile = sketch11
pocket10.Type = "ThroughAll"

sketch12 = body.newObject("Sketcher::SketchObject", "Sketch011")
sketch12.AttachmentSupport = (doc.getObject("XY_Plane"), [""])
sketch12.MapMode = "FlatFace"
sketch12.addGeometry(Part.Circle(App.Vector(17.5, 130, 0), App.Vector(0, 0, 1), 1.5), False)
sketch12.addGeometry(Part.Circle(App.Vector(82.5, 120, 0), App.Vector(0, 0, 1), 1.5), False)
sketch12.addGeometry(Part.Circle(App.Vector(17.5, 50, 0), App.Vector(0, 0, 1), 1.5), False)
sketch12.addGeometry(Part.Circle(App.Vector(82.5, 50, 0), App.Vector(0, 0, 1), 1.5), False)
sketch12.addGeometry(Part.Circle(App.Vector(17.5, -50, 0), App.Vector(0, 0, 1), 1.5), False)
sketch12.addGeometry(Part.Circle(App.Vector(82.5, -60, 0), App.Vector(0, 0, 1), 1.5), False)
sketch12.addGeometry(Part.Circle(App.Vector(17.5, -130, 0), App.Vector(0, 0, 1), 1.5), False)
sketch12.addGeometry(Part.Circle(App.Vector(82.5, -130, 0), App.Vector(0, 0, 1), 1.5), False)
add_polygon(sketch12, [(90, 40), (10, 40), (10, -40), (90, -40)])
sketch12.addConstraint(Sketcher.Constraint("Horizontal", 8))
sketch12.addConstraint(Sketcher.Constraint("Vertical", 9))
sketch12.addConstraint(Sketcher.Constraint("Horizontal", 10))
sketch12.addConstraint(Sketcher.Constraint("Vertical", 11))
sketch12.addConstraint(Sketcher.Constraint("Equal", 0, 1))
sketch12.addConstraint(Sketcher.Constraint("Equal", 1, 2))
sketch12.addConstraint(Sketcher.Constraint("Equal", 2, 3))
sketch12.addConstraint(Sketcher.Constraint("Equal", 3, 4))
sketch12.addConstraint(Sketcher.Constraint("Equal", 4, 5))
sketch12.addConstraint(Sketcher.Constraint("Equal", 5, 6))
sketch12.addConstraint(Sketcher.Constraint("Equal", 6, 7))
sketch12.addConstraint(Sketcher.Constraint("Symmetric", 2, 3, 4, 3, -1))
sketch12.addConstraint(Sketcher.Constraint("Symmetric", 0, 3, 6, 3, -1))
sketch12.addConstraint(Sketcher.Constraint("Horizontal", 2, 3, 3, 3))
sketch12.addConstraint(Sketcher.Constraint("Horizontal", 6, 3, 7, 3))
sketch12.addConstraint(Sketcher.Constraint("Vertical", 0, 3, 2, 3))
sketch12.addConstraint(Sketcher.Constraint("Vertical", 1, 3, 3, 3))
sketch12.addConstraint(Sketcher.Constraint("Vertical", 3, 3, 5, 3))
sketch12.addConstraint(Sketcher.Constraint("Vertical", 5, 3, 7, 3))
sketch12.addConstraint(Sketcher.Constraint("Equal", 10, 9))
sketch12.addConstraint(Sketcher.Constraint("Diameter", 0, 3.0))
sketch12.addConstraint(Sketcher.Constraint("DistanceX", 8, 2, 8, 1, 80.0))
sketch12.addConstraint(Sketcher.Constraint("DistanceY", -1, 1, 0, 3, 130.0))
sketch12.addConstraint(Sketcher.Constraint("DistanceY", -1, 1, 1, 3, 120.0))
sketch12.addConstraint(Sketcher.Constraint("DistanceY", -1, 1, 2, 3, 50.0))
sketch12.addConstraint(Sketcher.Constraint("DistanceY", 5, 3, -1, 1, 60.0))
sketch12.addConstraint(Sketcher.Constraint("DistanceX", -1, 1, 8, 2, 10.0))
sketch12.addConstraint(Sketcher.Constraint("DistanceY", -1, 1, 8, 2, 40.0))
sketch12.addConstraint(Sketcher.Constraint("DistanceX", 0, 3, 1, 3, 65.0))
sketch12.addConstraint(Sketcher.Constraint("DistanceX", -1, 1, 0, 3, 17.5))
pocket11 = body.newObject("PartDesign::Pocket", "Pocket010")
pocket11.Profile = sketch12
pocket11.Type = "ThroughAll"

sketch13 = body.newObject("Sketcher::SketchObject", "Sketch012")
sketch13.AttachmentSupport = (doc.getObject("XY_Plane"), [""])
sketch13.MapMode = "FlatFace"
add_polygon(sketch13, [(-45, -110), (-45, -150), (-5, -150), (-5, -110)])
add_polygon(sketch13, [(-45, 150), (-45, 110), (-5, 110), (-5, 150)])
sketch13.addConstraint(Sketcher.Constraint("Vertical", 0))
sketch13.addConstraint(Sketcher.Constraint("Horizontal", 1))
sketch13.addConstraint(Sketcher.Constraint("Vertical", 2))
sketch13.addConstraint(Sketcher.Constraint("Horizontal", 3))
sketch13.addConstraint(Sketcher.Constraint("Vertical", 4))
sketch13.addConstraint(Sketcher.Constraint("Horizontal", 5))
sketch13.addConstraint(Sketcher.Constraint("Vertical", 6))
sketch13.addConstraint(Sketcher.Constraint("Horizontal", 7))
sketch13.addConstraint(Sketcher.Constraint("Symmetric", 3, 2, 4, 2, -1))
sketch13.addConstraint(Sketcher.Constraint("Symmetric", 1, 2, 6, 2, -1))
sketch13.addConstraint(Sketcher.Constraint("Equal", 7, 0))
sketch13.addConstraint(Sketcher.Constraint("DistanceX", 1, 1, 1, 2, 40.0))
sketch13.addConstraint(Sketcher.Constraint("DistanceX", 0, 2, -1, 1, 45.0))
sketch13.addConstraint(Sketcher.Constraint("DistanceY", 0, 2, -1, 1, 150.0))
pocket12 = body.newObject("PartDesign::Pocket", "Pocket011")
pocket12.Profile = sketch13
pocket12.Type = "ThroughAll"

sketch14 = body.newObject("Sketcher::SketchObject", "Sketch013")
sketch14.AttachmentSupport = (doc.getObject("XY_Plane"), [""])
sketch14.MapMode = "FlatFace"
sketch14.addGeometry(Part.Circle(App.Vector(110, 43.5, 0), App.Vector(0, 0, 1), 1.5), False)
sketch14.addGeometry(Part.Circle(App.Vector(174, 43.5, 0), App.Vector(0, 0, 1), 1.5), False)
sketch14.addGeometry(Part.Circle(App.Vector(110, -43.5, 0), App.Vector(0, 0, 1), 1.5), False)
sketch14.addGeometry(Part.Circle(App.Vector(174, -43.5, 0), App.Vector(0, 0, 1), 1.5), False)
sketch14.addConstraint(Sketcher.Constraint("Equal", 0, 1))
sketch14.addConstraint(Sketcher.Constraint("Equal", 1, 2))
sketch14.addConstraint(Sketcher.Constraint("Equal", 2, 3))
sketch14.addConstraint(Sketcher.Constraint("Symmetric", 0, 3, 2, 3, -1))
sketch14.addConstraint(Sketcher.Constraint("Symmetric", 1, 3, 3, 3, -1))
sketch14.addConstraint(Sketcher.Constraint("Horizontal", 0, 3, 1, 3))
sketch14.addConstraint(Sketcher.Constraint("Diameter", 0, 3.0))
sketch14.addConstraint(Sketcher.Constraint("DistanceX", -1, 1, 0, 3, 110.0))
sketch14.addConstraint(Sketcher.Constraint("DistanceX", -1, 1, 1, 3, 174.0))
sketch14.addConstraint(Sketcher.Constraint("DistanceY", 2, 3, 0, 3, 87.0))
pocket13 = body.newObject("PartDesign::Pocket", "Pocket012")
pocket13.Profile = sketch14
pocket13.Type = "ThroughAll"

sketch15 = body.newObject("Sketcher::SketchObject", "Sketch014")
sketch15.AttachmentSupport = (doc.getObject("XY_Plane"), [""])
sketch15.MapMode = "FlatFace"
sketch15.addGeometry(Part.Circle(App.Vector(-20, 70, 0), App.Vector(0, 0, 1), 1.5), False)
sketch15.addGeometry(Part.Circle(App.Vector(-110, 70, 0), App.Vector(0, 0, 1), 1.5), False)
sketch15.addGeometry(Part.Circle(App.Vector(-110, -70, 0), App.Vector(0, 0, 1), 1.5), False)
sketch15.addGeometry(Part.Circle(App.Vector(-17.1, -70, 0), App.Vector(0, 0, 1), 1.5), False)
sketch15.addConstraint(Sketcher.Constraint("Equal", 0, 1))
sketch15.addConstraint(Sketcher.Constraint("Equal", 1, 2))
sketch15.addConstraint(Sketcher.Constraint("Equal", 2, 3))
sketch15.addConstraint(Sketcher.Constraint("Symmetric", 1, 3, 2, 3, -1))
sketch15.addConstraint(Sketcher.Constraint("Horizontal", 0, 3, 1, 3))
sketch15.addConstraint(Sketcher.Constraint("Horizontal", 2, 3, 3, 3))
sketch15.addConstraint(Sketcher.Constraint("Diameter", 0, 3.0))
sketch15.addConstraint(Sketcher.Constraint("DistanceX", 0, 3, -1, 1, 20.0))
sketch15.addConstraint(Sketcher.Constraint("DistanceY", -1, 1, 0, 3, 70.0))
sketch15.addConstraint(Sketcher.Constraint("DistanceX", 1, 3, -1, 1, 110.0))
sketch15.addConstraint(Sketcher.Constraint("DistanceX", 3, 3, -1, 1, 17.141016))
pocket14 = body.newObject("PartDesign::Pocket", "Pocket013")
pocket14.Profile = sketch15
pocket14.Type = "ThroughAll"

sketch16 = body.newObject("Sketcher::SketchObject", "Sketch015")
sketch16.AttachmentSupport = (doc.getObject("XY_Plane"), [""])
sketch16.MapMode = "FlatFace"
sketch16.addGeometry(Part.Circle(App.Vector(-120, 95, 0), App.Vector(0, 0, 1), 1.5), False)
sketch16.addGeometry(Part.Circle(App.Vector(-120, -95, 0), App.Vector(0, 0, 1), 1.5), False)
sketch16.addGeometry(Part.Circle(App.Vector(70, 145, 0), App.Vector(0, 0, 1), 1.5), False)
sketch16.addGeometry(Part.Circle(App.Vector(70, -145, 0), App.Vector(0, 0, 1), 1.5), False)
sketch16.addConstraint(Sketcher.Constraint("Equal", 0, 1))
sketch16.addConstraint(Sketcher.Constraint("Equal", 1, 2))
sketch16.addConstraint(Sketcher.Constraint("Equal", 2, 3))
sketch16.addConstraint(Sketcher.Constraint("Symmetric", 0, 3, 1, 3, -1))
sketch16.addConstraint(Sketcher.Constraint("Symmetric", 2, 3, 3, 3, -1))
sketch16.addConstraint(Sketcher.Constraint("Diameter", 0, 3.0))
sketch16.addConstraint(Sketcher.Constraint("DistanceX", 0, 3, -1, 1, 120.0))
sketch16.addConstraint(Sketcher.Constraint("DistanceY", -1, 1, 0, 3, 95.0))
sketch16.addConstraint(Sketcher.Constraint("DistanceX", -1, 1, 2, 3, 70.0))
sketch16.addConstraint(Sketcher.Constraint("DistanceY", -1, 1, 2, 3, 145.0))
pocket15 = body.newObject("PartDesign::Pocket", "Pocket014")
pocket15.Profile = sketch16
pocket15.Type = "ThroughAll"

doc.recompute()
